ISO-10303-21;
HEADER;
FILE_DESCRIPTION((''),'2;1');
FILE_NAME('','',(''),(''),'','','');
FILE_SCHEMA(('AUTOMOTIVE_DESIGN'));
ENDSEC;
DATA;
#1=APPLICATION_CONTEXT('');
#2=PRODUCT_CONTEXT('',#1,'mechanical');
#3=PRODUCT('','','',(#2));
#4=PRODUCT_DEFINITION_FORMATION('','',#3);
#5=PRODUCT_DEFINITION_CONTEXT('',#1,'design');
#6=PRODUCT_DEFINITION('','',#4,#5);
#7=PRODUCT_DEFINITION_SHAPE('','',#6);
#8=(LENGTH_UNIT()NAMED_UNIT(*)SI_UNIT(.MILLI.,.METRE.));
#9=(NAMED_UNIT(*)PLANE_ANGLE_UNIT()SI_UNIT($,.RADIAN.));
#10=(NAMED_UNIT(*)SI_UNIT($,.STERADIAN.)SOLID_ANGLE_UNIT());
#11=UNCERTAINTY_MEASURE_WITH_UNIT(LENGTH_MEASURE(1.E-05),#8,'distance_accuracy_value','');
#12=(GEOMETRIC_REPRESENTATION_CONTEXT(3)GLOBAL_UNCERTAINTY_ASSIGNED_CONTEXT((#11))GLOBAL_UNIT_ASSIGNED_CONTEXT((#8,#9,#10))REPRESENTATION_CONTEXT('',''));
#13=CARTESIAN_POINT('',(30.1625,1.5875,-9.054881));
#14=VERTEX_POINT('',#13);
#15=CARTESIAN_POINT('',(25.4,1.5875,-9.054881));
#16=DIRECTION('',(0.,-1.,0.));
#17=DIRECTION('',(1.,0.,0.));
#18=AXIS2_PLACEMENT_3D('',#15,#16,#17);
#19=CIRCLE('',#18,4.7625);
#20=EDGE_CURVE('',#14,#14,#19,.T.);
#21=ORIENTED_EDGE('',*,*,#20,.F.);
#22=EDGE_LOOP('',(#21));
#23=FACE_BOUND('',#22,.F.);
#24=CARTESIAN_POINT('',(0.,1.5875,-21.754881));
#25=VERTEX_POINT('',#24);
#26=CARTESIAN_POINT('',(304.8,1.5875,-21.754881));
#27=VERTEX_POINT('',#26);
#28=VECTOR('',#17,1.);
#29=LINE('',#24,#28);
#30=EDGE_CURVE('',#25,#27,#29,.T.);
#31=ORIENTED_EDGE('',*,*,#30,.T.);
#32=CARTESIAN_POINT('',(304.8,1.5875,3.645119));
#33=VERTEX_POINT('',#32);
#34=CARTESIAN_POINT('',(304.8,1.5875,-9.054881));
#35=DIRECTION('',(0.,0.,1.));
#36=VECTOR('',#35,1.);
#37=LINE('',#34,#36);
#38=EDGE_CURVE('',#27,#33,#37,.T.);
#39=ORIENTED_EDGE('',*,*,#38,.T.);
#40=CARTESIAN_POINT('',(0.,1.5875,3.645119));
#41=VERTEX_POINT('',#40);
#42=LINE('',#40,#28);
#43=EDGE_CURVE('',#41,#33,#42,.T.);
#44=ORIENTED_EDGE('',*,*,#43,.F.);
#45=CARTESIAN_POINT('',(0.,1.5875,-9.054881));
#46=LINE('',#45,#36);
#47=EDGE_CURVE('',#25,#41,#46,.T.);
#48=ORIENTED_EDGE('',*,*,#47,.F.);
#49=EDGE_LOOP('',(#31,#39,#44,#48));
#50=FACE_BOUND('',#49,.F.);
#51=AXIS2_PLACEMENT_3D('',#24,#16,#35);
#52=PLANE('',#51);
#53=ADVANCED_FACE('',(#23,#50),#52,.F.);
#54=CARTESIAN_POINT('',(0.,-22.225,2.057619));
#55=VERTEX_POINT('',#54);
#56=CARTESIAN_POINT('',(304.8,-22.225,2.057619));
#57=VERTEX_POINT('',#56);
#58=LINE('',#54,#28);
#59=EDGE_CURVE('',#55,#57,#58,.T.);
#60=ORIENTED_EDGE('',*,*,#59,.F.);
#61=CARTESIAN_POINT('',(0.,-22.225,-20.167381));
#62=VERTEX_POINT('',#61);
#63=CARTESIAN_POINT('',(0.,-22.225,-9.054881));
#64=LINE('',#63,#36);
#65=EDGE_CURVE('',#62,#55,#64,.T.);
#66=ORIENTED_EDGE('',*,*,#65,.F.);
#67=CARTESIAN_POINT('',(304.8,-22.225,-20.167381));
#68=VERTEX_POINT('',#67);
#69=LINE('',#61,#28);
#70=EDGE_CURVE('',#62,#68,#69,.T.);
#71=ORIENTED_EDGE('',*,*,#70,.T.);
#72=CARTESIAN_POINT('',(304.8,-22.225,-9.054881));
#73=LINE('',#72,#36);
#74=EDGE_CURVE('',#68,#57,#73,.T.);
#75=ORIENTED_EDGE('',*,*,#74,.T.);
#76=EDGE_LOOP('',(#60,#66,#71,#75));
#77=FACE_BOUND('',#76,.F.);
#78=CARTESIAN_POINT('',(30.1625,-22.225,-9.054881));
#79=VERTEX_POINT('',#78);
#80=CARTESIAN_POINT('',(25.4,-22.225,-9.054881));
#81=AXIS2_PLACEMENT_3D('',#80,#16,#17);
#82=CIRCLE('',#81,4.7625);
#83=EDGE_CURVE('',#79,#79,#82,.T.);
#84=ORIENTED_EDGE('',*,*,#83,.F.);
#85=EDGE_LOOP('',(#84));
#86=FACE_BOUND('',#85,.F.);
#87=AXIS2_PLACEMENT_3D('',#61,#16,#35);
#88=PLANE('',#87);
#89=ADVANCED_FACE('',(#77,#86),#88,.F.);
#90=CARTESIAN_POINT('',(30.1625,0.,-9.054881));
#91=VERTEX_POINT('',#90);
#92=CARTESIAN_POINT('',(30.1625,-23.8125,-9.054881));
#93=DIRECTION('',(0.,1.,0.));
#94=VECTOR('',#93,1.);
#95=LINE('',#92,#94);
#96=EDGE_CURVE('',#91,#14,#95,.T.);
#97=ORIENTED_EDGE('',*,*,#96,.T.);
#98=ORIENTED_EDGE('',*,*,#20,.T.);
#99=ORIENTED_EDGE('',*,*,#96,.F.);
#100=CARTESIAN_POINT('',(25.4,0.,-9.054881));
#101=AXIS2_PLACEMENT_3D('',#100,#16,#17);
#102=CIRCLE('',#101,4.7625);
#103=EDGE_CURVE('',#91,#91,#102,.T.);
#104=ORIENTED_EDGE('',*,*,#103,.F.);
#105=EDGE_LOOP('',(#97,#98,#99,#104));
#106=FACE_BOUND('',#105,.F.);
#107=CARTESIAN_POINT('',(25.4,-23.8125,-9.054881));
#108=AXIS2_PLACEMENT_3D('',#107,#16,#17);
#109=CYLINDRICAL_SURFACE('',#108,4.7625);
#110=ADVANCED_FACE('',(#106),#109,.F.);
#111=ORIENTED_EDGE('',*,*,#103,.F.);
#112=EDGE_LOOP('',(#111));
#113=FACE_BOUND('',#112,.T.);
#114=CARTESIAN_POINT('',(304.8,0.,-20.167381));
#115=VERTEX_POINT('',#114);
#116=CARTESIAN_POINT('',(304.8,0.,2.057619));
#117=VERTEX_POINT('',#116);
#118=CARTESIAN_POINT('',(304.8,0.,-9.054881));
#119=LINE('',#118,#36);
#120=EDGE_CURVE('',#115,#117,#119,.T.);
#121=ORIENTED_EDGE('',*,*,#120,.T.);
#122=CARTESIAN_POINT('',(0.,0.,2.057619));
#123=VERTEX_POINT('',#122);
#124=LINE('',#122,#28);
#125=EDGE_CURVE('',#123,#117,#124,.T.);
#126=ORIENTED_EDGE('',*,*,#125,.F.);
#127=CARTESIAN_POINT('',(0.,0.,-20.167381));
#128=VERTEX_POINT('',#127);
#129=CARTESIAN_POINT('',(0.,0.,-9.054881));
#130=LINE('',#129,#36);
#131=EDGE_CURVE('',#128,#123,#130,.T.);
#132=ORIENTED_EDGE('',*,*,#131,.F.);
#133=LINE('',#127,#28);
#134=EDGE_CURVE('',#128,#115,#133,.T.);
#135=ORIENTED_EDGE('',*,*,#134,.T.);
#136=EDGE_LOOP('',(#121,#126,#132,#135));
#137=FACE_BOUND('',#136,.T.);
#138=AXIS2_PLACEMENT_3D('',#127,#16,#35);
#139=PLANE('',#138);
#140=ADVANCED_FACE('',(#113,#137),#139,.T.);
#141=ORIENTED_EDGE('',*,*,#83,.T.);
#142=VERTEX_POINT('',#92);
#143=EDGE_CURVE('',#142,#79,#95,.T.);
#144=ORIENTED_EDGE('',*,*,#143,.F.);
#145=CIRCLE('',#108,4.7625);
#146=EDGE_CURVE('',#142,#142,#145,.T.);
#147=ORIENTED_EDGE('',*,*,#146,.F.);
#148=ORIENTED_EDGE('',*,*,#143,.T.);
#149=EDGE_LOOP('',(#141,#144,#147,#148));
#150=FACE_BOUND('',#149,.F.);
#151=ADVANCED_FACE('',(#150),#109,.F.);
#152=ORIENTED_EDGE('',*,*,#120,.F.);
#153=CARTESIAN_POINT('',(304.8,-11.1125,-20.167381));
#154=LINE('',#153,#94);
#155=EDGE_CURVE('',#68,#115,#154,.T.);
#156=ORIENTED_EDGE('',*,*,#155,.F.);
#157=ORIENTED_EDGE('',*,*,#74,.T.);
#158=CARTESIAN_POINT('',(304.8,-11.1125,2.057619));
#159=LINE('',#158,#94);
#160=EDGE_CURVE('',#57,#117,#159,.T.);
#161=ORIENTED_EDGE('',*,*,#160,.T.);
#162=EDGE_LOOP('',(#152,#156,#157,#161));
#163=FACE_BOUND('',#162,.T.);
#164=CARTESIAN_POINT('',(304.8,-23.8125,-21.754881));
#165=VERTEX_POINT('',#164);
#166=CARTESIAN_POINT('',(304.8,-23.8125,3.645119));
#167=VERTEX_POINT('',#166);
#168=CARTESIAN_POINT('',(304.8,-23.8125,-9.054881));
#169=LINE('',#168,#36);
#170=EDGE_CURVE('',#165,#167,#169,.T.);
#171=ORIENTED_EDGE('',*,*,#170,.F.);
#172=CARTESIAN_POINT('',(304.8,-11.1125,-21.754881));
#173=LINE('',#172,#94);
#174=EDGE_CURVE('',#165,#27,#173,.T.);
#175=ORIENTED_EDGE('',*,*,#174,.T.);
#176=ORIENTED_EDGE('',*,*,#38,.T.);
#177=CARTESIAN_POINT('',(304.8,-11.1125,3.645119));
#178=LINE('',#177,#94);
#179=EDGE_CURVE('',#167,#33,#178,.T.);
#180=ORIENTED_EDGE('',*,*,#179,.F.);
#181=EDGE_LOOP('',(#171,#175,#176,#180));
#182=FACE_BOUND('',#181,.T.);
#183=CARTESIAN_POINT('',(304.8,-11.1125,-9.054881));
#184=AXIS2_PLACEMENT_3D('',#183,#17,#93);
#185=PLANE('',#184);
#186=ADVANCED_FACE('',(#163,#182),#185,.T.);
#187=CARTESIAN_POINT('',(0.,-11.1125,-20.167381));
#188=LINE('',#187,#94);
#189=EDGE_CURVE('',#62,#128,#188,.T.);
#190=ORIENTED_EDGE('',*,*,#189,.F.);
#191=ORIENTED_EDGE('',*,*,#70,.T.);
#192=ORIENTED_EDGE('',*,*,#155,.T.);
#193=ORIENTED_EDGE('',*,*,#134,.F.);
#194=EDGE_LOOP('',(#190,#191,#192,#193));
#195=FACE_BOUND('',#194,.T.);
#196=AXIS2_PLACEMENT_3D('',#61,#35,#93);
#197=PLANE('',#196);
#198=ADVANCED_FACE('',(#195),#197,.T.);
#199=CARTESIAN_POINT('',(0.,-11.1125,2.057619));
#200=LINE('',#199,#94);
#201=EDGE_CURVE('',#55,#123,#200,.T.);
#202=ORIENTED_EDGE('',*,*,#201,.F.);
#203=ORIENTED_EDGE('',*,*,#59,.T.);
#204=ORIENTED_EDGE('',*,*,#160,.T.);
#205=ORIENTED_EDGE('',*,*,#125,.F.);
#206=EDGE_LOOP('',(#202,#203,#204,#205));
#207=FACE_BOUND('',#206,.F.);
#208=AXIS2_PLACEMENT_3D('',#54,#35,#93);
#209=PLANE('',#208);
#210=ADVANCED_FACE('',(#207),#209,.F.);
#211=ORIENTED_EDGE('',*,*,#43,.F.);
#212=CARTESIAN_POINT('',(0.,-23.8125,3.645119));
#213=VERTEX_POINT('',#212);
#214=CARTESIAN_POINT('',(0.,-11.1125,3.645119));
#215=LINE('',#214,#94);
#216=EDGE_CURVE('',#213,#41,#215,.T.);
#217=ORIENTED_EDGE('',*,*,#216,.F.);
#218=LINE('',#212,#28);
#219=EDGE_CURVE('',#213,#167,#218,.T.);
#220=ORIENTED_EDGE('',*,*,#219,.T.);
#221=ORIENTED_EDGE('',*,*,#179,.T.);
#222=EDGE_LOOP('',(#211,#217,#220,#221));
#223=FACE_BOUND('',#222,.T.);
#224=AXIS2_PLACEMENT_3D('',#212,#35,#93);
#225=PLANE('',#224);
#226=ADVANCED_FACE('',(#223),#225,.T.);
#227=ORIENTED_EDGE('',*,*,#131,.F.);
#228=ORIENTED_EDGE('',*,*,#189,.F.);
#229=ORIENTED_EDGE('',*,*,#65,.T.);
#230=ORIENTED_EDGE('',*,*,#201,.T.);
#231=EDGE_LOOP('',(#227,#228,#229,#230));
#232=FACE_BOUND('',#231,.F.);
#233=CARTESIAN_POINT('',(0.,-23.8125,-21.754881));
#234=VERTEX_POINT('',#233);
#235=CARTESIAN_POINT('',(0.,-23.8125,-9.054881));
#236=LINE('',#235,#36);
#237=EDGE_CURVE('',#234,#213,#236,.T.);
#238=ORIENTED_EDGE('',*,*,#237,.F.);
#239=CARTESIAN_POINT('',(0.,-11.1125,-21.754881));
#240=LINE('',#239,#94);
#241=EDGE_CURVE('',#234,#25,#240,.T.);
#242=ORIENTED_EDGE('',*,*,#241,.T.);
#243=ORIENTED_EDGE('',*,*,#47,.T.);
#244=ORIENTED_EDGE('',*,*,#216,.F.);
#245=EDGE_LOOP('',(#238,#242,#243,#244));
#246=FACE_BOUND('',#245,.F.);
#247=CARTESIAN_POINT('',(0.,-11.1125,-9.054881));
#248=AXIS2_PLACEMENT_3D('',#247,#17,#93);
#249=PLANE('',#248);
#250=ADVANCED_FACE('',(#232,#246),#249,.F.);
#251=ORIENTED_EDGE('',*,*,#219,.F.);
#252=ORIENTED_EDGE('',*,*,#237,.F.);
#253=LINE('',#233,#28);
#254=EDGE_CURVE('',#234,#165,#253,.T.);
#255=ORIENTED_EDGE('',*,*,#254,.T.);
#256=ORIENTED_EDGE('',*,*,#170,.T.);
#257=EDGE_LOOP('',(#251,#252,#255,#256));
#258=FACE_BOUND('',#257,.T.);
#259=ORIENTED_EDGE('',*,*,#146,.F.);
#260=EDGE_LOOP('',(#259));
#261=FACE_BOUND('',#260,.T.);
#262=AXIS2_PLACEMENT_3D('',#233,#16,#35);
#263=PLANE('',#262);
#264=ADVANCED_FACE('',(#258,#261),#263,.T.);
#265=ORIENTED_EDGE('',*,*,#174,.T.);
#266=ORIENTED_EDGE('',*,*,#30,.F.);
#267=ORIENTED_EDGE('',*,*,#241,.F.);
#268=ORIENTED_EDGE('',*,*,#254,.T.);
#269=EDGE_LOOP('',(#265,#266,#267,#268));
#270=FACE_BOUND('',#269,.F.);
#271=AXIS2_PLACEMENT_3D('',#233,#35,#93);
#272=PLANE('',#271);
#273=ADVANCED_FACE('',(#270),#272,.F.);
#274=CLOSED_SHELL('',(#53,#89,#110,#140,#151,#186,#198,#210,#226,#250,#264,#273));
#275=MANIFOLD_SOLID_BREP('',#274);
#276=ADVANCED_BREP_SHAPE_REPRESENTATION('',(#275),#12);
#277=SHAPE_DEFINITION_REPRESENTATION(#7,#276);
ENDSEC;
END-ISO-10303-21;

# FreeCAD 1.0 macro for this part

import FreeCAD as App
import Part
import Sketcher
from FreeCAD import Vector
Q = App.Units.Quantity


def add_polygon(sketch, points):
    """Adds a closed chain of lines whose ends are joined by coincident constraints."""
    first, n = sketch.GeometryCount, len(points)
    for a, b in zip(points, points[1:] + points[:1]):
        sketch.addGeometry(Part.LineSegment(App.Vector(*a, 0), App.Vector(*b, 0)), False)
    for i in range(n):
        sketch.addConstraint(Sketcher.Constraint("Coincident", first + i, 2, first + (i + 1) % n, 1))

doc = App.newDocument("Part")
body = doc.addObject("PartDesign::Body", "Body")

# Sketch on YZ plane
sketch1 = doc.addObject("Sketcher::SketchObject", "Sketch")
body.addObject(sketch1)
sketch1.AttachmentSupport = (doc.YZ_Plane, [""])
sketch1.MapMode = "FlatFace"
add_polygon(sketch1, [(-24, 4), (-24, -22), (2, -22), (2, 4)])  # lines 0-3
add_polygon(sketch1, [(0, -20), (-22, -20), (-22, 2), (0, 2)])  # lines 4-7
sketch1.addConstraint([
    Sketcher.Constraint("Vertical", 0),
    Sketcher.Constraint("Horizontal", 1),
    Sketcher.Constraint("Vertical", 2),
    Sketcher.Constraint("Horizontal", 3),
    Sketcher.Constraint("Horizontal", 4),
    Sketcher.Constraint("Vertical", 5),
    Sketcher.Constraint("Horizontal", 6),
    Sketcher.Constraint("Vertical", 7),
    Sketcher.Constraint("PointOnObject", 6, 2, -2),
    Sketcher.Constraint("Equal", 3, 0),
    Sketcher.Constraint("Equal", 6, 5),
    Sketcher.Constraint("DistanceX", 1, 1, 1, 2, Q("1 in")),
    Sketcher.Constraint("DistanceX", 4, 2, 4, 1, Q("0.875 in")),
    Sketcher.Constraint("DistanceX", 0, 2, -1, 1, Q("0.9375 in")),
    Sketcher.Constraint("DistanceY", 0, 2, 4, 2, Q("0.0625 in")),
    Sketcher.Constraint("DistanceY", 0, 2, -1, 1, 21.754881),
])
pad1 = doc.addObject("PartDesign::Pad", "Pad")
body.addObject(pad1)
pad1.Profile = sketch1
pad1.Length = Q("12 in")

# Sketch on XZ plane
sketch2 = doc.addObject("Sketcher::SketchObject", "Sketch001")
body.addObject(sketch2)
sketch2.AttachmentSupport = (doc.XZ_Plane, [""])
sketch2.MapMode = "FlatFace"
sketch2.AttachmentOffset = App.Placement(Vector(0, 0, 0.9375 * 25.4), App.Rotation())
sketch2.addGeometry(Part.Circle(Vector(25.4, -9.1, 0), Vector(0, 0, 1), 4.8), False)
sketch2.addConstraint([
    Sketcher.Constraint("Diameter", 0, Q("0.375 in")),
    Sketcher.Constraint("DistanceX", -1, 1, 0, 3, Q("1 in")),
    Sketcher.Constraint("DistanceY", 0, 3, -1, 1, 9.054881),
])
pocket1 = doc.addObject("PartDesign::Pocket", "Pocket")
body.addObject(pocket1)
pocket1.Profile = sketch2
pocket1.Length = Q("1 in")

doc.recompute()
